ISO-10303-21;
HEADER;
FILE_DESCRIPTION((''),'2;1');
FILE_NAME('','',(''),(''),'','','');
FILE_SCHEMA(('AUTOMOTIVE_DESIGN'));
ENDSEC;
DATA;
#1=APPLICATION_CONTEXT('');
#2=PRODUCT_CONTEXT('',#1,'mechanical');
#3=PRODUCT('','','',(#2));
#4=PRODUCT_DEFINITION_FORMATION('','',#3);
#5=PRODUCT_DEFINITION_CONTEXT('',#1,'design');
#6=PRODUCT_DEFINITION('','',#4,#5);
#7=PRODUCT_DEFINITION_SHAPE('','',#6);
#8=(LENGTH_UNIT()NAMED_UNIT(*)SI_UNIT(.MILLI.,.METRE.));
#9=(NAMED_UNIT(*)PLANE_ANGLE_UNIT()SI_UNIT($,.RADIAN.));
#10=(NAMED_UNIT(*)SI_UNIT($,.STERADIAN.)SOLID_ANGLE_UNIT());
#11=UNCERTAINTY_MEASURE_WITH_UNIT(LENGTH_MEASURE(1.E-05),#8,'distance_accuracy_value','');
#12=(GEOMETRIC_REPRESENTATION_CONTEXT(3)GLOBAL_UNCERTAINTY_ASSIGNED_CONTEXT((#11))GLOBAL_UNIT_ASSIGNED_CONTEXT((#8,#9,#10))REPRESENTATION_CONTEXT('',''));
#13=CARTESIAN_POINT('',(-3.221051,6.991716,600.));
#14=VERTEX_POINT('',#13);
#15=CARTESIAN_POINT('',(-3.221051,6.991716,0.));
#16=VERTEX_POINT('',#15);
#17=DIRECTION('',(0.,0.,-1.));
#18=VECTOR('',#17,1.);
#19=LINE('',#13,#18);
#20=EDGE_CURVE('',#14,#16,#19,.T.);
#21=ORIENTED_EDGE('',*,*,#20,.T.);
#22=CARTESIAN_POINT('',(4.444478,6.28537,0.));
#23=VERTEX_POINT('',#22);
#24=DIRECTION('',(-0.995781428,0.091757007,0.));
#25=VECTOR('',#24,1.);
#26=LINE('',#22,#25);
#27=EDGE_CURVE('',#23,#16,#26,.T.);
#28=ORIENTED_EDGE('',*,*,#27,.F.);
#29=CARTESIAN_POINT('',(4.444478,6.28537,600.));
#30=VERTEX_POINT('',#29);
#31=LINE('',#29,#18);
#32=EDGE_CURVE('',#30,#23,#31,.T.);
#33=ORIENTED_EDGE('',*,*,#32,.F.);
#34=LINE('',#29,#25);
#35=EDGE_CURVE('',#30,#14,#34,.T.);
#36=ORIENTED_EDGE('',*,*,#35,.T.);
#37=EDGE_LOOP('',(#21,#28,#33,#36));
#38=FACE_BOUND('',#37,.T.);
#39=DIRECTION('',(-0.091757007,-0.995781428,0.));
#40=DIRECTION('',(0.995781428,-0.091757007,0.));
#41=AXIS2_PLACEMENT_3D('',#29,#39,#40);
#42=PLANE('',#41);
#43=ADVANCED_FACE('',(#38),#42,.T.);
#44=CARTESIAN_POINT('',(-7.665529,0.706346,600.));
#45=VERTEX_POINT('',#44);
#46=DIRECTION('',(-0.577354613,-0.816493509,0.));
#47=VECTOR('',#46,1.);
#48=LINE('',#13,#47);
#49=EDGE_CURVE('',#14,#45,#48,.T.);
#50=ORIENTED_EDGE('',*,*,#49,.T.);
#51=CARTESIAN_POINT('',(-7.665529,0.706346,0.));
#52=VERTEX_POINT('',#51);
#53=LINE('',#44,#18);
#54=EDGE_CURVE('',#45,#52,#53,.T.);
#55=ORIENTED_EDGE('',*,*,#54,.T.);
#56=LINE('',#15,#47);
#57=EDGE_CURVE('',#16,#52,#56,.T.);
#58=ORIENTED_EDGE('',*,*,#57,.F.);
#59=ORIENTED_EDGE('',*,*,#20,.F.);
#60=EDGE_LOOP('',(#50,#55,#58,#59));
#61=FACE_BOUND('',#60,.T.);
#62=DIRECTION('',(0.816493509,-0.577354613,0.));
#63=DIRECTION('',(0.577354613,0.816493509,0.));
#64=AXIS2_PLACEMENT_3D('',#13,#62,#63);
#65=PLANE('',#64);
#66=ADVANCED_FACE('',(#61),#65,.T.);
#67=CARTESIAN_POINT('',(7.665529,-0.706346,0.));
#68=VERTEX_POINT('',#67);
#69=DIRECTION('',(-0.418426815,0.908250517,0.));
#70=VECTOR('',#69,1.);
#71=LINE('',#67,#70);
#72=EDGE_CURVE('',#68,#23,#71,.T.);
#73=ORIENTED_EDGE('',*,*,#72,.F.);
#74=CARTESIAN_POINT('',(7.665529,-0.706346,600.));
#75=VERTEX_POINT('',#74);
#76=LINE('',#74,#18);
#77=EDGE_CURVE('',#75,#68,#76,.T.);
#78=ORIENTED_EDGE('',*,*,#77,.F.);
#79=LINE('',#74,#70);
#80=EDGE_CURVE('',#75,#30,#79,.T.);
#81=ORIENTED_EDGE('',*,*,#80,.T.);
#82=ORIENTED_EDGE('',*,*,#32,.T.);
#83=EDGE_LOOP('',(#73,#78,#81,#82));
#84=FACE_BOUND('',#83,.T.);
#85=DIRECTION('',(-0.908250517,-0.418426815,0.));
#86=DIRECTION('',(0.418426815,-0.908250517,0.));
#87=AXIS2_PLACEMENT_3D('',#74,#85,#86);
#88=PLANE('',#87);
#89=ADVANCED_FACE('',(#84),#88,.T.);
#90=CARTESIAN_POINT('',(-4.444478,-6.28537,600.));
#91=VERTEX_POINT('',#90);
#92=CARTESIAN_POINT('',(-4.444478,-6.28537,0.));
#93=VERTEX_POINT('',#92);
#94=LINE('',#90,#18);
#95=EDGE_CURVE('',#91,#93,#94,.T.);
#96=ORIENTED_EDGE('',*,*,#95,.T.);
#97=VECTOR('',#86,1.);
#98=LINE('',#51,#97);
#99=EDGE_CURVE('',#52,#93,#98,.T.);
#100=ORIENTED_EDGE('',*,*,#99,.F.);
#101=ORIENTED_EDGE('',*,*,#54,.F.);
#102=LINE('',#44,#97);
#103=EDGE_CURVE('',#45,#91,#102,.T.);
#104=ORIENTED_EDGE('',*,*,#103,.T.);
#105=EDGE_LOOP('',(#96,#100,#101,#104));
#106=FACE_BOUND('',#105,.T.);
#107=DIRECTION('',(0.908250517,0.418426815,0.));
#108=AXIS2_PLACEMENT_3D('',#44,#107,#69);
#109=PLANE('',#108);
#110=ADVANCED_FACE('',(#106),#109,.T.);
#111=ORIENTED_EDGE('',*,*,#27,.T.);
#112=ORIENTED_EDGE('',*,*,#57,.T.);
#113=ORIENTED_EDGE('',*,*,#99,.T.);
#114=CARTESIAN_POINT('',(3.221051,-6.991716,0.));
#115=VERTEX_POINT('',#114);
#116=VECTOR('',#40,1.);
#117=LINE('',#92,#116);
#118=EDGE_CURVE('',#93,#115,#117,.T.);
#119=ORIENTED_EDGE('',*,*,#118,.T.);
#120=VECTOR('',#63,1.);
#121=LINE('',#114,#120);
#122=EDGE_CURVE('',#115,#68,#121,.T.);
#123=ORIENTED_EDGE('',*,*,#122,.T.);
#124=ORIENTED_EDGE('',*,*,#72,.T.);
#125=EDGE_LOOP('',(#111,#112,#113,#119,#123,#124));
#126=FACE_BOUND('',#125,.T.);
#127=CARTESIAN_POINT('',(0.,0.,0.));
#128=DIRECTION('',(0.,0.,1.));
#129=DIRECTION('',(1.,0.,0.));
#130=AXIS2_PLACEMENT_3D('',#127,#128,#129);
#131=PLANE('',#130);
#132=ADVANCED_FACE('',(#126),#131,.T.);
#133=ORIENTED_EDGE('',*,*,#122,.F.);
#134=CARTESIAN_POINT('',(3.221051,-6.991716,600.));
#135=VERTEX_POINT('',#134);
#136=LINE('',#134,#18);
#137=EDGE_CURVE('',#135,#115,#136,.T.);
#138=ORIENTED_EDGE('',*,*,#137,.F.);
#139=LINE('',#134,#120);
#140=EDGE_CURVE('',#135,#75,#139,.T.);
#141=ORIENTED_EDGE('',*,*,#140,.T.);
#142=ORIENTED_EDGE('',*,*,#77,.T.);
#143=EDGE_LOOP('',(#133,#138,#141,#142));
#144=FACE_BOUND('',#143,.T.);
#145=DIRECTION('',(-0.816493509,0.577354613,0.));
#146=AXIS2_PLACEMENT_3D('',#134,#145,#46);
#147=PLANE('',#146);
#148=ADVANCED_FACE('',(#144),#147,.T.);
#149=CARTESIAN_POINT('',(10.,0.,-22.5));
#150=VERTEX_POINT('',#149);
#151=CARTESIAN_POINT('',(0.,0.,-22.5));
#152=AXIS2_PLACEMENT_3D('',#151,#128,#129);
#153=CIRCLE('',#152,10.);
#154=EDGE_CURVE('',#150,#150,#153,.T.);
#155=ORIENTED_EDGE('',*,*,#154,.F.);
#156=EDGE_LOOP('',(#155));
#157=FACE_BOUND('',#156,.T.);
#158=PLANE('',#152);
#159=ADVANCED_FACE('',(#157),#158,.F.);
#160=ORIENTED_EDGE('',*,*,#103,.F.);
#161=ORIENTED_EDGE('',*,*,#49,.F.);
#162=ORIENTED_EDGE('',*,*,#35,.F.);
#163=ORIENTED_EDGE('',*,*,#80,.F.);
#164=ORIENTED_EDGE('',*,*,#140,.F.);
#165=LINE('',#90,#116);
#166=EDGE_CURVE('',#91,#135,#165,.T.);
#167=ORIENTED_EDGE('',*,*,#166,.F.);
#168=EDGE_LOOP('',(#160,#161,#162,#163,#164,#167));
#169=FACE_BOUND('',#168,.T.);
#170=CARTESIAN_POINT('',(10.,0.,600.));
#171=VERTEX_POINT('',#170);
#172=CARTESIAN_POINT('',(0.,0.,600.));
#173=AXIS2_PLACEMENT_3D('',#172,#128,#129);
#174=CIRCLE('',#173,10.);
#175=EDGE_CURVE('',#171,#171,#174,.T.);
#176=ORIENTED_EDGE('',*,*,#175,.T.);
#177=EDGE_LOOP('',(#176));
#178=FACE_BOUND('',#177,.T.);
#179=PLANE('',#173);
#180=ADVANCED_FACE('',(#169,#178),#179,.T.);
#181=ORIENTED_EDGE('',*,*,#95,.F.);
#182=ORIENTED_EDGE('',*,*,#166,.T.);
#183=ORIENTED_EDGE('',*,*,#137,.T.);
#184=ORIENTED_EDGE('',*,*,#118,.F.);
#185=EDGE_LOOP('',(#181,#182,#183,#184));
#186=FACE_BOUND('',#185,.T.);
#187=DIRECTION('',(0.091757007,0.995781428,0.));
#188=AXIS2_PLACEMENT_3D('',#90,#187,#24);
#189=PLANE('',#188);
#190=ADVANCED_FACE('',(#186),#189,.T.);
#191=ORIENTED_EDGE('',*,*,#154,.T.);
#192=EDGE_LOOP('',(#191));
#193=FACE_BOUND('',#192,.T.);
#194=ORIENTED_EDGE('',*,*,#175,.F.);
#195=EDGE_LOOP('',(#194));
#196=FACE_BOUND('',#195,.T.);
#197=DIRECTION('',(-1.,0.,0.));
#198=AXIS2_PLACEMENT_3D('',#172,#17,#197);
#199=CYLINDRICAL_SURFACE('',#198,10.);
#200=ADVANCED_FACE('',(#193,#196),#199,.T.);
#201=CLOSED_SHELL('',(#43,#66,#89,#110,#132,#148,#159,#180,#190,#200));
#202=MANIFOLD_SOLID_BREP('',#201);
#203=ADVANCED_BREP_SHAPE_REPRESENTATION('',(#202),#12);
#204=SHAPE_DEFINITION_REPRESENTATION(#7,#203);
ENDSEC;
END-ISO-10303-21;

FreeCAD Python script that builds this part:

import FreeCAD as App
import Part
import Sketcher

doc = App.newDocument("Part")
params = doc.addObject("Spreadsheet::Sheet", "Params")
for row, (alias, value) in enumerate([
    ("sketch1_diameter", "20 mm"),
    ("pad1_length", "600 mm"),
    ("sketch2_diameter", "20 mm"),
    ("pad2_length", "22.5 mm"),
], start=1):
    params.set(f"A{row}", alias)
    params.set(f"B{row}", "=" + value)
    params.setAlias(f"B{row}", alias)

body = doc.addObject("PartDesign::Body", "Body")

sketch1 = body.newObject("Sketcher::SketchObject", "Sketch")
sketch1.AttachmentSupport = (doc.getObject("XY_Plane"), [""])
sketch1.MapMode = "FlatFace"
sketch1.addGeometry([
    Part.Circle(App.Vector(0, 0, 0), App.Vector(0, 0, 1), 10),
    Part.LineSegment(App.Vector(4, 6, 0), App.Vector(8, -1, 0)),
    Part.LineSegment(App.Vector(8, -1, 0), App.Vector(3, -7, 0)),
    Part.LineSegment(App.Vector(3, -7, 0), App.Vector(-4, -6, 0)),
    Part.LineSegment(App.Vector(-4, -6, 0), App.Vector(-8, 1, 0)),
    Part.LineSegment(App.Vector(-8, 1, 0), App.Vector(-3, 7, 0)),
    Part.LineSegment(App.Vector(-3, 7, 0), App.Vector(4, 6, 0)),
], False)
sketch1.addConstraint([
    Sketcher.Constraint("Coincident", 1, 2, 2, 1),
    Sketcher.Constraint("Coincident", 2, 2, 3, 1),
    Sketcher.Constraint("Coincident", 3, 2, 4, 1),
    Sketcher.Constraint("Coincident", 4, 2, 5, 1),
    Sketcher.Constraint("Coincident", 5, 2, 6, 1),
    Sketcher.Constraint("Coincident", 6, 2, 1, 1),
    Sketcher.Constraint("Coincident", 0, 3, -1, 1),
    Sketcher.Constraint("Symmetric", 1, 2, 4, 2, -1, 1),
    Sketcher.Constraint("Symmetric", 2, 2, 5, 2, -1, 1),
    Sketcher.Constraint("Symmetric", 3, 2, 6, 2, -1, 1),
    Sketcher.Constraint("Equal", 1, 2),
    Sketcher.Constraint("Equal", 2, 3),
    Sketcher.Constraint("Diameter", 0, 20.0),
    Sketcher.Constraint("DistanceX", -1, 1, 1, 2, 7.665529),
    Sketcher.Constraint("DistanceX", -1, 1, 2, 2, 3.221051),
    Sketcher.Constraint("DistanceY", 3, 2, -1, 1, 6.28537),
    Sketcher.Constraint("DistanceY", 2, 2, 1, 2, 6.28537),
])
sketch1.setExpression("Constraints[12]", "Params.sketch1_diameter")
pad1 = body.newObject("PartDesign::Pad", "Pad")
pad1.Profile = sketch1
pad1.setExpression("Length", "Params.pad1_length")

sketch2 = body.newObject("Sketcher::SketchObject", "Sketch001")
sketch2.AttachmentSupport = (doc.getObject("XY_Plane"), [""])
sketch2.MapMode = "FlatFace"
sketch2.addGeometry(Part.Circle(App.Vector(0, 0, 0), App.Vector(0, 0, 1), 10), False)
sketch2.addConstraint([
    Sketcher.Constraint("Coincident", 0, 3, -1, 1),
    Sketcher.Constraint("Diameter", 0, 20.0),
])
sketch2.setExpression("Constraints[1]", "Params.sketch2_diameter")
pad2 = body.newObject("PartDesign::Pad", "Pad001")
pad2.Profile = sketch2
pad2.setExpression("Length", "Params.pad2_length")
pad2.Reversed = True

doc.recompute()
